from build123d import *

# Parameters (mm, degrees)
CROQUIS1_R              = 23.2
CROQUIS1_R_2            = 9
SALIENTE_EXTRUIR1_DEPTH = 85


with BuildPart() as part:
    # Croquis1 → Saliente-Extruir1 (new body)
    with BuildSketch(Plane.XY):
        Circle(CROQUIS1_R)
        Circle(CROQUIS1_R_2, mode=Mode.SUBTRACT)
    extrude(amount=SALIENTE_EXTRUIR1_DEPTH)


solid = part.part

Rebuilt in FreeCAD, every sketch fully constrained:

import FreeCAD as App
import Part
import Sketcher

doc = App.newDocument("Part")
body = doc.addObject("PartDesign::Body", "Body")

# Sketch on XY plane
sketch1 = body.newObject("Sketcher::SketchObject", "Sketch")
sketch1.AttachmentSupport = (doc.getObject("XY_Plane"), [""])
sketch1.MapMode = "FlatFace"
sketch1.addGeometry(Part.Circle(App.Vector(0, 0, 0), App.Vector(0, 0, 1), 23), False)
sketch1.addGeometry(Part.Circle(App.Vector(0, 0, 0), App.Vector(0, 0, 1), 9), False)
sketch1.addConstraint(Sketcher.Constraint("Coincident", 0, 3, -1, 1))
sketch1.addConstraint(Sketcher.Constraint("Coincident", 1, 3, -1, 1))
sketch1.addConstraint(Sketcher.Constraint("Diameter", 1, 18.0))
sketch1.addConstraint(Sketcher.Constraint("Diameter", 0, 46.4))
pad1 = body.newObject("PartDesign::Pad", "Pad")
pad1.Profile = sketch1
pad1.Length = 85

doc.recompute()
